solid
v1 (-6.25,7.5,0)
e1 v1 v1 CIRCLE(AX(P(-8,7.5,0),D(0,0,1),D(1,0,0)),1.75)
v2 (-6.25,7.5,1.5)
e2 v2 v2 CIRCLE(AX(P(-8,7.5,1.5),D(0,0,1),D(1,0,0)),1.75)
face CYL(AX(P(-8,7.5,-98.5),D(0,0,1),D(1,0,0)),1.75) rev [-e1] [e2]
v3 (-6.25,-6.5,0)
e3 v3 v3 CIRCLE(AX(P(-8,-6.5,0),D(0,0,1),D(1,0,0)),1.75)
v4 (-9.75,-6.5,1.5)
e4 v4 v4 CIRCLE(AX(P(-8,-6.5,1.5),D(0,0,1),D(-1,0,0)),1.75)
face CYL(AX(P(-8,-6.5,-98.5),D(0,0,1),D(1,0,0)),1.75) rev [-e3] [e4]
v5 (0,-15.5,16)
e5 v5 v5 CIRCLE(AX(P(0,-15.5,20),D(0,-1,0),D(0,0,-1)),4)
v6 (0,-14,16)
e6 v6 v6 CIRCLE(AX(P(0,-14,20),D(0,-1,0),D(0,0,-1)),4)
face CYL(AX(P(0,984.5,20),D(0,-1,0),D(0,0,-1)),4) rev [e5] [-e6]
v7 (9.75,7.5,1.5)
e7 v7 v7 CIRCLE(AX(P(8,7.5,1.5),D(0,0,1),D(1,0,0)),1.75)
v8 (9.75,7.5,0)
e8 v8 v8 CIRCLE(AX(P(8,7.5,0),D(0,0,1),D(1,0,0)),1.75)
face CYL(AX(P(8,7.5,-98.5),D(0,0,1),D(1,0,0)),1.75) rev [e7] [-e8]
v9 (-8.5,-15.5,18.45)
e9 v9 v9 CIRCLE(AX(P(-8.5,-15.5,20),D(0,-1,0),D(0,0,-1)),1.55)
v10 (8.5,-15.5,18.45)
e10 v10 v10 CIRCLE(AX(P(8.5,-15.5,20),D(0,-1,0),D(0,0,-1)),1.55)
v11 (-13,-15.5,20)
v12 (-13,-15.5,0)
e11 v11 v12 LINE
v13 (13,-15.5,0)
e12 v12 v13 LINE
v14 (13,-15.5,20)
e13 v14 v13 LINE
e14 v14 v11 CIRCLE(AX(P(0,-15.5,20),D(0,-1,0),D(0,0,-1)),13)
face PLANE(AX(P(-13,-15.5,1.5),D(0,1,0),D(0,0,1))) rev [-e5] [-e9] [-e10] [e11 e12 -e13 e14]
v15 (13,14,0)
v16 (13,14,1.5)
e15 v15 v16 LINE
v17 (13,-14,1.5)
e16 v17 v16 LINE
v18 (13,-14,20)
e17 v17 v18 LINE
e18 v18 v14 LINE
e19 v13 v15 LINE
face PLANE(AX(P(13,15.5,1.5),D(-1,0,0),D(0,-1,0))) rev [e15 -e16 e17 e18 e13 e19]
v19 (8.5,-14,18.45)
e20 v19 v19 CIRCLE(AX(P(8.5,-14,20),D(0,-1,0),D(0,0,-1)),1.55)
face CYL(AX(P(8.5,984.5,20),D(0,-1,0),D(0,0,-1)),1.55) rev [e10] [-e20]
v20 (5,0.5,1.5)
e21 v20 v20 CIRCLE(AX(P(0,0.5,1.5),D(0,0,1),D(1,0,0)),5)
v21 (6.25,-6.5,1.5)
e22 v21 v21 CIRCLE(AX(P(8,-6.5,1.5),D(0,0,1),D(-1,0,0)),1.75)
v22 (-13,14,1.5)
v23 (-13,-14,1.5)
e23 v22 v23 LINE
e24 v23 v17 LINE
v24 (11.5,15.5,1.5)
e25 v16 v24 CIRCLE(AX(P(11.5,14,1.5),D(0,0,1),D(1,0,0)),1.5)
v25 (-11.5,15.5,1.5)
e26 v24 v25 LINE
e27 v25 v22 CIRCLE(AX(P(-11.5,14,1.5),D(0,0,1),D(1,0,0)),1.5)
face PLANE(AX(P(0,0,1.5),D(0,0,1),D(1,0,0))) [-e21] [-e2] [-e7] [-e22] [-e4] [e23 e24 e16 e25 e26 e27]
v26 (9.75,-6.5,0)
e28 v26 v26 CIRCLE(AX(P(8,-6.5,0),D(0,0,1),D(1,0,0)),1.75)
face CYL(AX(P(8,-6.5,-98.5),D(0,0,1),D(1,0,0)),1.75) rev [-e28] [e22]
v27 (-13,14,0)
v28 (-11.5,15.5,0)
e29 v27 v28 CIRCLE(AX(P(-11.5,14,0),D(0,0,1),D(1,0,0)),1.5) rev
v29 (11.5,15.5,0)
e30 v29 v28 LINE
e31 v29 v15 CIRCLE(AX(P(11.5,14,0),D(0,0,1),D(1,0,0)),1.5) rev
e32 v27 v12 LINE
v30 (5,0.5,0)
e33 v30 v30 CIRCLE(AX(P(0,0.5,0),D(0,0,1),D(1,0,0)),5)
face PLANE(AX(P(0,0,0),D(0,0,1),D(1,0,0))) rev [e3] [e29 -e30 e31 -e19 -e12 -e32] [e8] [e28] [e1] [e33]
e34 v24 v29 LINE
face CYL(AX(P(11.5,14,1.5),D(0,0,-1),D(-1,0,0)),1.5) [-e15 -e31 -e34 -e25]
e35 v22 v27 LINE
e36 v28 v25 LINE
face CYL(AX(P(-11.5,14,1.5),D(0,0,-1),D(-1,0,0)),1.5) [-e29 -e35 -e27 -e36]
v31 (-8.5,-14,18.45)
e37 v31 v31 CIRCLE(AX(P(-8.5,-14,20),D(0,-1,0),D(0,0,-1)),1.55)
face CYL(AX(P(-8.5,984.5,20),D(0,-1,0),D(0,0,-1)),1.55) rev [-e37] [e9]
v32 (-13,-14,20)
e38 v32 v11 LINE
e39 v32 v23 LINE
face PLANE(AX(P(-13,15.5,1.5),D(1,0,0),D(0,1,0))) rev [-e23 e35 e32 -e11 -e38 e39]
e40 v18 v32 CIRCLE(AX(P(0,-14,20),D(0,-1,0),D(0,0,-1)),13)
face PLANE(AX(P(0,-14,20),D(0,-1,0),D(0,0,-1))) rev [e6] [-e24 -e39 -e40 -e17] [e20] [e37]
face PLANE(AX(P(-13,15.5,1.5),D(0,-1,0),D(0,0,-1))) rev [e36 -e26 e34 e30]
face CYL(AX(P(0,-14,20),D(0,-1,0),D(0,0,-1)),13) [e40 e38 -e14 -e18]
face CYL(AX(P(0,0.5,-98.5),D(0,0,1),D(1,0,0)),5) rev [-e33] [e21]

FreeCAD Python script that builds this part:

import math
import FreeCAD as App
import Part
import Sketcher


def edges_at(feature, points):
    """Names of the edges that pass closest to the given points."""
    edges = feature.Shape.Edges
    near = lambda p: min(range(len(edges)), key=lambda i: edges[i].distToShape(Part.Vertex(*p))[0])
    return sorted({f"Edge{near(p) + 1}" for p in points})


def add_polygon(sketch, points):
    """Adds a closed chain of lines whose ends are joined by coincident constraints."""
    first, n = sketch.GeometryCount, len(points)
    for a, b in zip(points, points[1:] + points[:1]):
        sketch.addGeometry(Part.LineSegment(App.Vector(*a, 0), App.Vector(*b, 0)), False)
    for i in range(n):
        sketch.addConstraint(Sketcher.Constraint("Coincident", first + i, 2, first + (i + 1) % n, 1))

doc = App.newDocument("Part")
params = doc.addObject("Spreadsheet::Sheet", "Params")
for row, (alias, value) in enumerate([
    ("sketch1_width", "26 mm"),
    ("sketch1_height", "31 mm"),
    ("pad1_length", "1.5 mm"),
    ("sketch2_radius", "13 mm"),
    ("sketch2_height", "20 mm"),
    ("pad2_length", "1.5 mm"),
    ("sketch3_diameter", "8 mm"),
    ("sketch3_diameter2", "3.1 mm"),
    ("pocket1_length", "1000 mm"),
    ("fillet_radius", "1.5 mm"),
    ("sketch4_diameter", "10 mm"),
    ("sketch4_diameter2", "3.5 mm"),
    ("pocket2_length", "100 mm"),
], start=1):
    params.set(f"A{row}", alias)
    params.set(f"B{row}", "=" + value)
    params.setAlias(f"B{row}", alias)

body = doc.addObject("PartDesign::Body", "Body")

# Sketch on XY plane
sketch1 = body.newObject("Sketcher::SketchObject", "Sketch")
sketch1.AttachmentSupport = (doc.getObject("XY_Plane"), [""])
sketch1.MapMode = "FlatFace"
add_polygon(sketch1, [(-13, 16), (-13, -16), (13, -16), (13, 16)])  # lines 0-3
sketch1.addConstraint([
    Sketcher.Constraint("Vertical", 0),
    Sketcher.Constraint("Horizontal", 1),
    Sketcher.Constraint("Vertical", 2),
    Sketcher.Constraint("Horizontal", 3),
    Sketcher.Constraint("Symmetric", 0, 2, 2, 2, -1, 1),
    Sketcher.Constraint("DistanceX", 1, 1, 1, 2, 26.0),
    Sketcher.Constraint("DistanceY", 0, 2, 0, 1, 31.0),
])
sketch1.setExpression("Constraints[9]", "Params.sketch1_width")
sketch1.setExpression("Constraints[10]", "Params.sketch1_height")
pad1 = body.newObject("PartDesign::Pad", "Pad")
pad1.Profile = sketch1
pad1.setExpression("Length", "Params.pad1_length")

# Sketch on XZ plane
sketch2 = body.newObject("Sketcher::SketchObject", "Sketch001")
sketch2.AttachmentSupport = (doc.getObject("XZ_Plane"), [""])
sketch2.MapMode = "FlatFace"
sketch2.AttachmentOffset = App.Placement(App.Vector(0, 0, 15.5), App.Rotation())
sketch2.addGeometry([
    Part.LineSegment(App.Vector(-13, 0, 0), App.Vector(13, 0, 0)),
    Part.LineSegment(App.Vector(13, 0, 0), App.Vector(13, 20, 0)),
    Part.ArcOfCircle(Part.Circle(App.Vector(0, 20, 0), App.Vector(0, 0, 1), 13), math.radians(0), math.radians(180)),
    Part.LineSegment(App.Vector(-13, 20, 0), App.Vector(-13, 0, 0)),
], False)
sketch2.addConstraint([
    Sketcher.Constraint("Coincident", 0, 2, 1, 1),
    Sketcher.Constraint("Tangent", 1, 2, 2, 1),
    Sketcher.Constraint("Tangent", 2, 2, 3, 1),
    Sketcher.Constraint("Coincident", 3, 2, 0, 1),
    Sketcher.Constraint("Horizontal", 0),
    Sketcher.Constraint("Vertical", 1),
    Sketcher.Constraint("Vertical", 3),
    Sketcher.Constraint("Symmetric", 0, 2, 3, 2, -1, 1),
    Sketcher.Constraint("Radius", 2, 13.0),
    Sketcher.Constraint("DistanceY", 1, 1, 1, 2, 20.0),
])
sketch2.setExpression("Constraints[8]", "Params.sketch2_radius")
sketch2.setExpression("Constraints[9]", "Params.sketch2_height")
pad2 = body.newObject("PartDesign::Pad", "Pad001")
pad2.Profile = sketch2
pad2.setExpression("Length", "Params.pad2_length")
pad2.Reversed = True

# Sketch on XZ plane
sketch3 = body.newObject("Sketcher::SketchObject", "Sketch002")
sketch3.AttachmentSupport = (doc.getObject("XZ_Plane"), [""])
sketch3.MapMode = "FlatFace"
sketch3.AttachmentOffset = App.Placement(App.Vector(0, 0, 15.5), App.Rotation())
sketch3.addGeometry([
    Part.Circle(App.Vector(0, 20, 0), App.Vector(0, 0, 1), 4),
    Part.Circle(App.Vector(8.5, 20, 0), App.Vector(0, 0, 1), 1.6),
    Part.Circle(App.Vector(-8.5, 20, 0), App.Vector(0, 0, 1), 1.6),
], False)
sketch3.addConstraint([
    Sketcher.Constraint("Equal", 1, 2),
    Sketcher.Constraint("Symmetric", 1, 3, 2, 3, -2),
    Sketcher.Constraint("PointOnObject", 0, 3, -2),
    Sketcher.Constraint("Horizontal", 0, 3, 1, 3),
    Sketcher.Constraint("Diameter", 0, 8.0),
    Sketcher.Constraint("Diameter", 1, 3.1),
    Sketcher.Constraint("DistanceY", -1, 1, 0, 3, 20.0),
    Sketcher.Constraint("DistanceX", 2, 3, 1, 3, 17.0),
])
sketch3.setExpression("Constraints[4]", "Params.sketch3_diameter")
sketch3.setExpression("Constraints[5]", "Params.sketch3_diameter2")
pocket1 = body.newObject("PartDesign::Pocket", "Pocket")
pocket1.Profile = sketch3
pocket1.setExpression("Length", "Params.pocket1_length")
doc.recompute()

fillet = body.newObject("PartDesign::Fillet", "Fillet")
fillet.Base = (pocket1, edges_at(pocket1, [(-13, 15.5, 0.75), (13, 15.5, 0.75)]))
fillet.setExpression("Radius", "Params.fillet_radius")

# Sketch on XY plane
sketch4 = body.newObject("Sketcher::SketchObject", "Sketch003")
sketch4.AttachmentSupport = (doc.getObject("XY_Plane"), [""])
sketch4.MapMode = "FlatFace"
sketch4.AttachmentOffset = App.Placement(App.Vector(0, 0, 1.5), App.Rotation())
sketch4.addGeometry([
    Part.Circle(App.Vector(0, 0.5, 0), App.Vector(0, 0, 1), 5),  # 0
    Part.Circle(App.Vector(-8, 7.5, 0), App.Vector(0, 0, 1), 1.8),  # 1
    Part.Circle(App.Vector(8, 7.5, 0), App.Vector(0, 0, 1), 1.8),  # 2
    Part.Circle(App.Vector(-8, -6.5, 0), App.Vector(0, 0, 1), 1.8),  # 3
    Part.Circle(App.Vector(8, -6.5, 0), App.Vector(0, 0, 1), 1.8),  # 4
], False)
sketch4.addConstraint([
    Sketcher.Constraint("Equal", 1, 2),
    Sketcher.Constraint("Equal", 2, 3),
    Sketcher.Constraint("Equal", 3, 4),
    Sketcher.Constraint("Symmetric", 1, 3, 2, 3, -2),
    Sketcher.Constraint("Symmetric", 3, 3, 4, 3, -2),
    Sketcher.Constraint("PointOnObject", 0, 3, -2),
    Sketcher.Constraint("Vertical", 1, 3, 3, 3),
    Sketcher.Constraint("Diameter", 0, 10.0),
    Sketcher.Constraint("Diameter", 1, 3.5),
    Sketcher.Constraint("DistanceX", 1, 3, -1, 1, 8.0),
    Sketcher.Constraint("DistanceY", 0, 3, 1, 3, 7.0),
    Sketcher.Constraint("DistanceY", 3, 3, 0, 3, 7.0),
    Sketcher.Constraint("DistanceY", -1, 1, 0, 3, 0.5),
])
sketch4.setExpression("Constraints[7]", "Params.sketch4_diameter")
sketch4.setExpression("Constraints[8]", "Params.sketch4_diameter2")
pocket2 = body.newObject("PartDesign::Pocket", "Pocket001")
pocket2.Profile = sketch4
pocket2.setExpression("Length", "Params.pocket2_length")

doc.recompute()
